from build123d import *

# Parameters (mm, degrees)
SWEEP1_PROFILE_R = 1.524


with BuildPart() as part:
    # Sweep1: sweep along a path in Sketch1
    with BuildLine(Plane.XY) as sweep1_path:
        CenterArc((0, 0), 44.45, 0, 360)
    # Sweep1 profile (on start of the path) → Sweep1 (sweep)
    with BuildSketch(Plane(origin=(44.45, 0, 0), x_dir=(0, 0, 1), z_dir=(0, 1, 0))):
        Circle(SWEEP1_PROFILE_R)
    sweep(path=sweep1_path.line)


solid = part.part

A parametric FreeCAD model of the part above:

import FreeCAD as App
import Part
import Sketcher
from FreeCAD import Vector
Q = App.Units.Quantity

doc = App.newDocument("Part")
body = doc.addObject("PartDesign::Body", "Body")

# Sketch on XZ plane
sketch1 = doc.addObject("Sketcher::SketchObject", "Sketch")
body.addObject(sketch1)
sketch1.AttachmentSupport = (doc.XZ_Plane, [""])
sketch1.MapMode = "FlatFace"
sketch1.addGeometry(Part.Circle(Vector(44.5, 0, 0), Vector(0, 0, 1), 1.5), False)
sketch1.addConstraint([
    Sketcher.Constraint("PointOnObject", 0, 3, -1),
    Sketcher.Constraint("Diameter", 0, Q("0.12 in")),
    Sketcher.Constraint("DistanceX", -1, 1, 0, 3, Q("1.75 in")),
])

# Sketch on XY plane
sketch2 = doc.addObject("Sketcher::SketchObject", "Sketch001")
body.addObject(sketch2)
sketch2.AttachmentSupport = (doc.XY_Plane, [""])
sketch2.MapMode = "FlatFace"
sketch2.addGeometry(Part.Circle(Vector(0, 0, 0), Vector(0, 0, 1), 44), False)
sketch2.addConstraint([
    Sketcher.Constraint("Coincident", 0, 3, -1, 1),
    Sketcher.Constraint("Diameter", 0, Q("3.5 in")),
])
doc.recompute()

additivepipe = doc.addObject("PartDesign::AdditivePipe", "AdditivePipe")
body.addObject(additivepipe)
additivepipe.Profile = sketch1
additivepipe.Spine = (sketch2, ["Edge1"])

doc.recompute()
